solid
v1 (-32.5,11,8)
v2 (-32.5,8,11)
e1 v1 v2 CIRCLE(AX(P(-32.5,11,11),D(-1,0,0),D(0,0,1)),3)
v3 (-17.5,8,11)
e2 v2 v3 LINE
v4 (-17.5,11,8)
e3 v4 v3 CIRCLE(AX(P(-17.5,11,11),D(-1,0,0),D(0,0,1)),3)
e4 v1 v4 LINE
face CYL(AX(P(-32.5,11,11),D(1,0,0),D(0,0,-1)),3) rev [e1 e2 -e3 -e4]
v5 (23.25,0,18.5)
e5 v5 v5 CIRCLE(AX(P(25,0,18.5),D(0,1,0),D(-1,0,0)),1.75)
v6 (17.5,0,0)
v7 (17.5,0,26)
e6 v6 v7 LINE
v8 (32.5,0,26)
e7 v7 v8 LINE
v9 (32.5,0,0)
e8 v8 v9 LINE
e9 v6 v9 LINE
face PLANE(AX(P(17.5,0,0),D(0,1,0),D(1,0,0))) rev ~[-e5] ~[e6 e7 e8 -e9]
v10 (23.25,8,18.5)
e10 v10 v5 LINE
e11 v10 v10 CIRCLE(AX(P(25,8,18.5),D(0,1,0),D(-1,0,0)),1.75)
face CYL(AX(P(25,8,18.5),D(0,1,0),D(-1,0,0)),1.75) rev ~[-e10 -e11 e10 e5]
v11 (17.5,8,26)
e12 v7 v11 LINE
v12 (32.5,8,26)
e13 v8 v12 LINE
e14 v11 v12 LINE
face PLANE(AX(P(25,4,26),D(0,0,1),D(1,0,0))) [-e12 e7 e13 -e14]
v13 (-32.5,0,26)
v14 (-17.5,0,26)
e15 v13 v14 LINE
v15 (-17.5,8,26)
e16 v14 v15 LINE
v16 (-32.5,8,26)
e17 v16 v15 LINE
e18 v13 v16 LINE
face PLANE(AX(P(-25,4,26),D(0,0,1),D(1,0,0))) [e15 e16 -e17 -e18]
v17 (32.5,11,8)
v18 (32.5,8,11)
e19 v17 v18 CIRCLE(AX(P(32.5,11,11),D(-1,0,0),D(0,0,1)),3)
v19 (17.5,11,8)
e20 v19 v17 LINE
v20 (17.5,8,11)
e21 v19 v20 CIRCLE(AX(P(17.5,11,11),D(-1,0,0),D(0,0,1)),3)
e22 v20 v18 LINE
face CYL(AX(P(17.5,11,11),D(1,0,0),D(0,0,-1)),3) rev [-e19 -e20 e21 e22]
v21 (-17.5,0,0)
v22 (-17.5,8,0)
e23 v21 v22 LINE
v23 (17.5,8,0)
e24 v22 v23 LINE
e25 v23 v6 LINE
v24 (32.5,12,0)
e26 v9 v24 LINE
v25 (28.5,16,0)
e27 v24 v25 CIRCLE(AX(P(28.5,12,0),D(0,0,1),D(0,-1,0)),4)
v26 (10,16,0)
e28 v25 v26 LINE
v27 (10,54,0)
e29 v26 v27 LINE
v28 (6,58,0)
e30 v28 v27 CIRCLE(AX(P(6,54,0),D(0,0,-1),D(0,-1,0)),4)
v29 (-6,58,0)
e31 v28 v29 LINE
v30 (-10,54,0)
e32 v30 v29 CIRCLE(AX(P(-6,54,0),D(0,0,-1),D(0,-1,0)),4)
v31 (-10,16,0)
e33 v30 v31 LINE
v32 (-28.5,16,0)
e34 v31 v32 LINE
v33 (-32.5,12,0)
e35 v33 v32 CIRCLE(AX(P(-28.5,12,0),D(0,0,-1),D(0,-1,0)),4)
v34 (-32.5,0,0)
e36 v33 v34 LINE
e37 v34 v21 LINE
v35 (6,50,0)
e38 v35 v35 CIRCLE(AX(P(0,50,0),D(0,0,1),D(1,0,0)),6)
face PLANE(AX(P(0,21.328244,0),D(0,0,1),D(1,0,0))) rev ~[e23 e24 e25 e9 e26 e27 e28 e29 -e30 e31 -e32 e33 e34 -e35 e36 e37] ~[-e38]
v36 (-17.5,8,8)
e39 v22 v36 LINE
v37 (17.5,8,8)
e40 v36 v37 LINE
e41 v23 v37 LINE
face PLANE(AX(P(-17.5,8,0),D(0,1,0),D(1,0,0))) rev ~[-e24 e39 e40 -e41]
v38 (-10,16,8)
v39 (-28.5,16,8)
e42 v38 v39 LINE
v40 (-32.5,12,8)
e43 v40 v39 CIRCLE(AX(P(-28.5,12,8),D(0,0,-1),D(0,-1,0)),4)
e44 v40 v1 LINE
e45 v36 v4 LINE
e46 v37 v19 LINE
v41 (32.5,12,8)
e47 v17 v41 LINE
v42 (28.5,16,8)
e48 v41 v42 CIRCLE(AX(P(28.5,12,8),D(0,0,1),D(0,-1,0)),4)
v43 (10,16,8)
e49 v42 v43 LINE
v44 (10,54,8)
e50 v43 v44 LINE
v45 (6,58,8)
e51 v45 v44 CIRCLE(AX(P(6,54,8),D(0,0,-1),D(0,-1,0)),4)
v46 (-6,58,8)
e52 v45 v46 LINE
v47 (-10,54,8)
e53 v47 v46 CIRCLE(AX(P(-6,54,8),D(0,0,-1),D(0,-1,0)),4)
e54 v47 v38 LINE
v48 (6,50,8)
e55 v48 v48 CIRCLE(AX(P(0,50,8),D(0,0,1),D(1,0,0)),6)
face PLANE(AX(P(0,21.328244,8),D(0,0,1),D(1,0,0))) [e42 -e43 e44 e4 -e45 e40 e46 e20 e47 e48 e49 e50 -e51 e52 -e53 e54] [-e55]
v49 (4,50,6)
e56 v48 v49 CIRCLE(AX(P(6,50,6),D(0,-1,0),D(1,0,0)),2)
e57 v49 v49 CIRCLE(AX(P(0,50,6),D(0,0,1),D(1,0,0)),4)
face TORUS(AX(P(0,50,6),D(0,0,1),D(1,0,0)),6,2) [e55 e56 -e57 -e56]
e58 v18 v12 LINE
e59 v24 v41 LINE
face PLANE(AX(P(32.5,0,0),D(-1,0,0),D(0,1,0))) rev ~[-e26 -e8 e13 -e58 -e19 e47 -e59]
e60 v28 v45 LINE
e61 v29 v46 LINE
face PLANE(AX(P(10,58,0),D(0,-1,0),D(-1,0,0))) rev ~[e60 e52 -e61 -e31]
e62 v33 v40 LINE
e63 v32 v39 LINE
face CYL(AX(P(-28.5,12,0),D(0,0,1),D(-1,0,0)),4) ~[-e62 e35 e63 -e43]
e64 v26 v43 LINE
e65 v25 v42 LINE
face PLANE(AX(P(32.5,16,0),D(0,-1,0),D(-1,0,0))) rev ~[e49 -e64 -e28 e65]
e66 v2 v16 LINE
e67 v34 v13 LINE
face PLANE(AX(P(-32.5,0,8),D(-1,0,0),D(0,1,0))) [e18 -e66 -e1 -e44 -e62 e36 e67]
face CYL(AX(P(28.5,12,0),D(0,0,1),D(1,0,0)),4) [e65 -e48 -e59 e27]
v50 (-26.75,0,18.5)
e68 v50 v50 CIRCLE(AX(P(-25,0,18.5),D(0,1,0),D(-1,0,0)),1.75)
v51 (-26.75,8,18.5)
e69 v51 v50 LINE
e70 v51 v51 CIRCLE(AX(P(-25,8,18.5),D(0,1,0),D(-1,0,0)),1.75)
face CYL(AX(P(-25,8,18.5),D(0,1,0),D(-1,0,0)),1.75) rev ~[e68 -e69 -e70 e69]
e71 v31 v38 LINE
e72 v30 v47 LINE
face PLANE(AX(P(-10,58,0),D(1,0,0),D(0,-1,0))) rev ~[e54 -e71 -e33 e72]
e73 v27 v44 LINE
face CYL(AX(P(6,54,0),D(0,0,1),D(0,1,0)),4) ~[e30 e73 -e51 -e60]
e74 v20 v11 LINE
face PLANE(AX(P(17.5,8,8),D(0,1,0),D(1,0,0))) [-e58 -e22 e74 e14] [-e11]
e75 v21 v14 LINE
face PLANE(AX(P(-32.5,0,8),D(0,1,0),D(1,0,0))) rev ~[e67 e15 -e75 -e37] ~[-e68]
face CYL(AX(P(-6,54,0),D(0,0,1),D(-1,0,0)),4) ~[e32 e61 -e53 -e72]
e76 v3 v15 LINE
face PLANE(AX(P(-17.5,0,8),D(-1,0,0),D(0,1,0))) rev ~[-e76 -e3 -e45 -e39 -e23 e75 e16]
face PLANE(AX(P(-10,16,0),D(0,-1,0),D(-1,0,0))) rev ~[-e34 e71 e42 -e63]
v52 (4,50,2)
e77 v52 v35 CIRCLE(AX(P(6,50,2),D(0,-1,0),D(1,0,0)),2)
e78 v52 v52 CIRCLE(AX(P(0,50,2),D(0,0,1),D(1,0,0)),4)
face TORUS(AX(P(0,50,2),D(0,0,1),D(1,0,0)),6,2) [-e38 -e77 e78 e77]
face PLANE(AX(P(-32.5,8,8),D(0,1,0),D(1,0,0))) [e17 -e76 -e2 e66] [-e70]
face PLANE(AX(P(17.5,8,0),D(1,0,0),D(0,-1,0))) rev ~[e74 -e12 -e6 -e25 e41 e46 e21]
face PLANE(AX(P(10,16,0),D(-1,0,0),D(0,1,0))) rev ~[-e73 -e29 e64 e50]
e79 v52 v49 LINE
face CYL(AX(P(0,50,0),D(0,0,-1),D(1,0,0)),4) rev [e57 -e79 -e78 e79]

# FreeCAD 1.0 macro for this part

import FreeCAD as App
import Part
import Sketcher

V = App.Vector
Q = App.Units.Quantity


def edges_at(feature, points):
    """Names of the edges that pass closest to the given points."""
    edges = feature.Shape.Edges
    near = lambda p: min(range(len(edges)), key=lambda i: edges[i].distToShape(Part.Vertex(*p))[0])
    return sorted({f"Edge{near(p) + 1}" for p in points})

doc = App.newDocument("Part")
params = doc.addObject("Spreadsheet::Sheet", "Params")
for row, (alias, value) in enumerate([
    ("sketch1_diameter", "8 mm"),
    ("sketch1_width", "15 mm"),
    ("sketch1_width2", "35 mm"),
    ("sketch1_width3", "20 mm"),
    ("sketch1_height", "8 mm"),
    ("pad1_length", "8 mm"),
    ("sketch2_width", "15 mm"),
    ("sketch2_height", "8 mm"),
    ("pad2_length", "18 mm"),
    ("sketch3_diameter", "3.5 mm"),
    ("fillet_radius", "2 mm"),
    ("fillet2_radius", "2 mm"),
    ("fillet3_radius", "4 mm"),
    ("fillet4_radius", "3 mm"),
], start=1):
    params.set(f"A{row}", alias)
    params.set(f"B{row}", "=" + value)
    params.setAlias(f"B{row}", alias)

body = doc.addObject("PartDesign::Body", "Body")

sketch1 = body.newObject("Sketcher::SketchObject", "Sketch")
sketch1.AttachmentSupport = (doc.getObject("XY_Plane"), [""])
sketch1.MapMode = "FlatFace"
sketch1.addGeometry(Part.LineSegment(V(-32.5, 0, 0), V(-17.5, 0, 0)), False)
sketch1.addGeometry(Part.LineSegment(V(-17.5, 0, 0), V(-17.5, 8, 0)), False)
sketch1.addGeometry(Part.LineSegment(V(-17.5, 8, 0), V(17.5, 8, 0)), False)
sketch1.addGeometry(Part.LineSegment(V(17.5, 8, 0), V(17.5, 0, 0)), False)
sketch1.addGeometry(Part.LineSegment(V(17.5, 0, 0), V(32.5, 0, 0)), False)
sketch1.addGeometry(Part.LineSegment(V(32.5, 0, 0), V(32.5, 16, 0)), False)
sketch1.addGeometry(Part.LineSegment(V(32.5, 16, 0), V(10, 16, 0)), False)
sketch1.addGeometry(Part.LineSegment(V(10, 16, 0), V(10, 58, 0)), False)
sketch1.addGeometry(Part.LineSegment(V(10, 58, 0), V(-10, 58, 0)), False)
sketch1.addGeometry(Part.LineSegment(V(-10, 58, 0), V(-10, 16, 0)), False)
sketch1.addGeometry(Part.LineSegment(V(-10, 16, 0), V(-32.5, 16, 0)), False)
sketch1.addGeometry(Part.LineSegment(V(-32.5, 16, 0), V(-32.5, 0, 0)), False)
sketch1.addGeometry(Part.Circle(V(0, 50, 0), V(0, 0, 1), 4), False)
sketch1.addConstraint(Sketcher.Constraint("Coincident", 0, 2, 1, 1))
sketch1.addConstraint(Sketcher.Constraint("Coincident", 1, 2, 2, 1))
sketch1.addConstraint(Sketcher.Constraint("Coincident", 2, 2, 3, 1))
sketch1.addConstraint(Sketcher.Constraint("Coincident", 3, 2, 4, 1))
sketch1.addConstraint(Sketcher.Constraint("Coincident", 4, 2, 5, 1))
sketch1.addConstraint(Sketcher.Constraint("Coincident", 5, 2, 6, 1))
sketch1.addConstraint(Sketcher.Constraint("Coincident", 6, 2, 7, 1))
sketch1.addConstraint(Sketcher.Constraint("Coincident", 7, 2, 8, 1))
sketch1.addConstraint(Sketcher.Constraint("Coincident", 8, 2, 9, 1))
sketch1.addConstraint(Sketcher.Constraint("Coincident", 9, 2, 10, 1))
sketch1.addConstraint(Sketcher.Constraint("Coincident", 10, 2, 11, 1))
sketch1.addConstraint(Sketcher.Constraint("Coincident", 11, 2, 0, 1))
sketch1.addConstraint(Sketcher.Constraint("Horizontal", 0))
sketch1.addConstraint(Sketcher.Constraint("Vertical", 1))
sketch1.addConstraint(Sketcher.Constraint("Horizontal", 2))
sketch1.addConstraint(Sketcher.Constraint("Vertical", 3))
sketch1.addConstraint(Sketcher.Constraint("Horizontal", 4))
sketch1.addConstraint(Sketcher.Constraint("Vertical", 5))
sketch1.addConstraint(Sketcher.Constraint("Horizontal", 6))
sketch1.addConstraint(Sketcher.Constraint("Vertical", 7))
sketch1.addConstraint(Sketcher.Constraint("Horizontal", 8))
sketch1.addConstraint(Sketcher.Constraint("Vertical", 9))
sketch1.addConstraint(Sketcher.Constraint("Horizontal", 10))
sketch1.addConstraint(Sketcher.Constraint("Vertical", 11))
sketch1.addConstraint(Sketcher.Constraint("Symmetric", 0, 2, 3, 2, -1, 1))
sketch1.addConstraint(Sketcher.Constraint("Symmetric", 6, 2, 9, 2, -2))
sketch1.addConstraint(Sketcher.Constraint("Symmetric", 4, 2, 11, 2, -2))
sketch1.addConstraint(Sketcher.Constraint("PointOnObject", 12, 3, -2))
sketch1.addConstraint(Sketcher.Constraint("Diameter", 12, Q("8 mm")))
sketch1.addConstraint(Sketcher.Constraint("DistanceX", 0, 1, 0, 2, Q("15 mm")))
sketch1.addConstraint(Sketcher.Constraint("DistanceX", 2, 1, 2, 2, Q("35 mm")))
sketch1.addConstraint(Sketcher.Constraint("DistanceX", 8, 2, 8, 1, Q("20 mm")))
sketch1.addConstraint(Sketcher.Constraint("DistanceY", 1, 1, 1, 2, Q("8 mm")))
sketch1.addConstraint(Sketcher.Constraint("DistanceY", 5, 1, 5, 2, Q("16 mm")))
sketch1.addConstraint(Sketcher.Constraint("DistanceY", 7, 1, 7, 2, Q("42 mm")))
sketch1.addConstraint(Sketcher.Constraint("DistanceY", -1, 1, 12, 3, Q("50 mm")))
sketch1.setExpression("Constraints[28]", "Params.sketch1_diameter")
sketch1.setExpression("Constraints[29]", "Params.sketch1_width")
sketch1.setExpression("Constraints[30]", "Params.sketch1_width2")
sketch1.setExpression("Constraints[31]", "Params.sketch1_width3")
sketch1.setExpression("Constraints[32]", "Params.sketch1_height")
pad1 = body.newObject("PartDesign::Pad", "Pad")
pad1.Profile = sketch1
pad1.setExpression("Length", "Params.pad1_length")

sketch2 = body.newObject("Sketcher::SketchObject", "Sketch001")
sketch2.AttachmentSupport = (doc.getObject("XY_Plane"), [""])
sketch2.MapMode = "FlatFace"
sketch2.AttachmentOffset = App.Placement(V(0, 0, 8), App.Rotation())
sketch2.addGeometry(Part.LineSegment(V(-32, 8, 0), V(-32, 0, 0)), False)
sketch2.addGeometry(Part.LineSegment(V(-32, 0, 0), V(-18, 0, 0)), False)
sketch2.addGeometry(Part.LineSegment(V(-18, 0, 0), V(-18, 8, 0)), False)
sketch2.addGeometry(Part.LineSegment(V(-18, 8, 0), V(-32, 8, 0)), False)
sketch2.addGeometry(Part.LineSegment(V(18, 8, 0), V(18, 0, 0)), False)
sketch2.addGeometry(Part.LineSegment(V(18, 0, 0), V(32, 0, 0)), False)
sketch2.addGeometry(Part.LineSegment(V(32, 0, 0), V(32, 8, 0)), False)
sketch2.addGeometry(Part.LineSegment(V(32, 8, 0), V(18, 8, 0)), False)
sketch2.addConstraint(Sketcher.Constraint("Coincident", 0, 2, 1, 1))
sketch2.addConstraint(Sketcher.Constraint("Coincident", 1, 2, 2, 1))
sketch2.addConstraint(Sketcher.Constraint("Coincident", 2, 2, 3, 1))
sketch2.addConstraint(Sketcher.Constraint("Coincident", 3, 2, 0, 1))
sketch2.addConstraint(Sketcher.Constraint("Coincident", 4, 2, 5, 1))
sketch2.addConstraint(Sketcher.Constraint("Coincident", 5, 2, 6, 1))
sketch2.addConstraint(Sketcher.Constraint("Coincident", 6, 2, 7, 1))
sketch2.addConstraint(Sketcher.Constraint("Coincident", 7, 2, 4, 1))
sketch2.addConstraint(Sketcher.Constraint("Vertical", 0))
sketch2.addConstraint(Sketcher.Constraint("Horizontal", 1))
sketch2.addConstraint(Sketcher.Constraint("Vertical", 2))
sketch2.addConstraint(Sketcher.Constraint("Horizontal", 3))
sketch2.addConstraint(Sketcher.Constraint("Vertical", 4))
sketch2.addConstraint(Sketcher.Constraint("Horizontal", 5))
sketch2.addConstraint(Sketcher.Constraint("Vertical", 6))
sketch2.addConstraint(Sketcher.Constraint("Horizontal", 7))
sketch2.addConstraint(Sketcher.Constraint("Symmetric", 1, 2, 4, 2, -1, 1))
sketch2.addConstraint(Sketcher.Constraint("Symmetric", 0, 2, 5, 2, -2))
sketch2.addConstraint(Sketcher.Constraint("Horizontal", 3, 2, 6, 2))
sketch2.addConstraint(Sketcher.Constraint("DistanceX", 1, 1, 1, 2, Q("15 mm")))
sketch2.addConstraint(Sketcher.Constraint("DistanceY", 0, 2, 0, 1, Q("8 mm")))
sketch2.addConstraint(Sketcher.Constraint("DistanceX", 1, 2, 4, 2, Q("35 mm")))
sketch2.setExpression("Constraints[19]", "Params.sketch2_width")
sketch2.setExpression("Constraints[20]", "Params.sketch2_height")
pad2 = body.newObject("PartDesign::Pad", "Pad001")
pad2.Profile = sketch2
pad2.setExpression("Length", "Params.pad2_length")

sketch3 = body.newObject("Sketcher::SketchObject", "Sketch002")
sketch3.AttachmentSupport = (doc.getObject("XZ_Plane"), [""])
sketch3.MapMode = "FlatFace"
sketch3.AttachmentOffset = App.Placement(V(0, 0, -8), App.Rotation())
sketch3.addGeometry(Part.Circle(V(25, 18.5, 0), V(0, 0, 1), 1.8), False)
sketch3.addGeometry(Part.Circle(V(-25, 18.5, 0), V(0, 0, 1), 1.8), False)
sketch3.addConstraint(Sketcher.Constraint("Equal", 0, 1))
sketch3.addConstraint(Sketcher.Constraint("Symmetric", 0, 3, 1, 3, -2))
sketch3.addConstraint(Sketcher.Constraint("Diameter", 0, Q("3.5 mm")))
sketch3.addConstraint(Sketcher.Constraint("DistanceX", -1, 1, 0, 3, Q("25 mm")))
sketch3.addConstraint(Sketcher.Constraint("DistanceY", -1, 1, 0, 3, Q("18.5 mm")))
sketch3.setExpression("Constraints[2]", "Params.sketch3_diameter")
pocket1 = body.newObject("PartDesign::Pocket", "Pocket")
pocket1.Profile = sketch3
pocket1.Type = "ThroughAll"
pocket1.Reversed = True
doc.recompute()

fillet = body.newObject("PartDesign::Fillet", "Fillet")
fillet.Base = (pocket1, edges_at(pocket1, [(-4, 50, 8)]))
fillet.setExpression("Radius", "Params.fillet_radius")
doc.recompute()

fillet2 = body.newObject("PartDesign::Fillet", "Fillet001")
fillet2.Base = (fillet, edges_at(fillet, [(-4, 50, 0)]))
fillet2.setExpression("Radius", "Params.fillet2_radius")
doc.recompute()

fillet3 = body.newObject("PartDesign::Fillet", "Fillet002")
fillet3.Base = (fillet2, edges_at(fillet2, [
    (-10, 58, 4),
    (10, 58, 4),
    (-32.5, 16, 4),
    (32.5, 16, 4),
]))
fillet3.setExpression("Radius", "Params.fillet3_radius")
doc.recompute()

fillet4 = body.newObject("PartDesign::Fillet", "Fillet003")
fillet4.Base = (fillet3, edges_at(fillet3, [(25, 8, 8), (-25, 8, 8)]))
fillet4.setExpression("Radius", "Params.fillet4_radius")

doc.recompute()
